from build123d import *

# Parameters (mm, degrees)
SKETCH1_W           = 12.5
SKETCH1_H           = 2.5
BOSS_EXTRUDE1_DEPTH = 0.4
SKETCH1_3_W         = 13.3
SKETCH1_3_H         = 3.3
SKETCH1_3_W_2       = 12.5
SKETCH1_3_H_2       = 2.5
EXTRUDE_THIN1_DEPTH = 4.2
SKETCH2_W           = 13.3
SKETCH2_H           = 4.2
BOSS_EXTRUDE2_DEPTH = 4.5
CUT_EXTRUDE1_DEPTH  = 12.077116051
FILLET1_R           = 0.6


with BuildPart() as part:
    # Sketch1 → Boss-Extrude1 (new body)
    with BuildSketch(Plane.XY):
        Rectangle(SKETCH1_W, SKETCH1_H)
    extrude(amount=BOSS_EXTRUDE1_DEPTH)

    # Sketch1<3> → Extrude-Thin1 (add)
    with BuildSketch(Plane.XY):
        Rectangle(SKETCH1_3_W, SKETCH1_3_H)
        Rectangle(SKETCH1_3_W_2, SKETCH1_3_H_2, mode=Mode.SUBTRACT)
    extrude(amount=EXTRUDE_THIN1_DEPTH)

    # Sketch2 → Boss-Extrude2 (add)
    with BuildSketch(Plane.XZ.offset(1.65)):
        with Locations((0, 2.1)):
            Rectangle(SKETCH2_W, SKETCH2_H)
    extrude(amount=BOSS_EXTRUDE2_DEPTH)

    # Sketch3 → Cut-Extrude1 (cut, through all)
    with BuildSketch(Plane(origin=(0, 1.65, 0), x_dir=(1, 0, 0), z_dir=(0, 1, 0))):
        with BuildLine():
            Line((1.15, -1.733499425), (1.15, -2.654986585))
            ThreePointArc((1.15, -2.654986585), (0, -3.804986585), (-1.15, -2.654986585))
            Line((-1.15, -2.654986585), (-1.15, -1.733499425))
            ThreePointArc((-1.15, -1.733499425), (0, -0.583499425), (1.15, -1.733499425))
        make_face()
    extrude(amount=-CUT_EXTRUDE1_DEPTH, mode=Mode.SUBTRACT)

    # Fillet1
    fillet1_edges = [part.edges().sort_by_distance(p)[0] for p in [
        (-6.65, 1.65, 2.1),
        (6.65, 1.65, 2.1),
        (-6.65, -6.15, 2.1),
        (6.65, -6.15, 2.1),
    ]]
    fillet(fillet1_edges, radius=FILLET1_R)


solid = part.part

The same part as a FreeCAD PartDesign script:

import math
import FreeCAD as App
import Part
import Sketcher

V = App.Vector


def edges_at(feature, points):
    """Names of the edges that pass closest to the given points."""
    edges = feature.Shape.Edges
    near = lambda p: min(range(len(edges)), key=lambda i: edges[i].distToShape(Part.Vertex(*p))[0])
    return sorted({f"Edge{near(p) + 1}" for p in points})


def add_polygon(sketch, points):
    """Adds a closed chain of lines whose ends are joined by coincident constraints."""
    first, n = sketch.GeometryCount, len(points)
    for a, b in zip(points, points[1:] + points[:1]):
        sketch.addGeometry(Part.LineSegment(App.Vector(*a, 0), App.Vector(*b, 0)), False)
    for i in range(n):
        sketch.addConstraint(Sketcher.Constraint("Coincident", first + i, 2, first + (i + 1) % n, 1))

doc = App.newDocument("Part")
params = doc.addObject("Spreadsheet::Sheet", "Params")
for row, (alias, value) in enumerate([
    ("sketch1_width", "12.5 mm"),
    ("sketch1_height", "2.5 mm"),
    ("pad1_length", "0.4 mm"),
    ("sketch2_width", "13.3 mm"),
    ("sketch2_width2", "12.5 mm"),
    ("sketch2_height", "3.3 mm"),
    ("sketch2_height2", "2.5 mm"),
    ("pad2_length", "4.2 mm"),
    ("sketch3_width", "13.3 mm"),
    ("sketch3_height", "4.2 mm"),
    ("pad3_length", "4.5 mm"),
    ("sketch4_radius", "1.15 mm"),
    ("fillet_radius", "0.6 mm"),
], start=1):
    params.set(f"A{row}", alias)
    params.set(f"B{row}", "=" + value)
    params.setAlias(f"B{row}", alias)

body = doc.addObject("PartDesign::Body", "Body")

# Sketch on XY plane
sketch1 = body.newObject("Sketcher::SketchObject", "Sketch")
sketch1.AttachmentSupport = (doc.getObject("XY_Plane"), [""])
sketch1.MapMode = "FlatFace"
add_polygon(sketch1, [(-6.2, 1.2), (-6.2, -1.2), (6.2, -1.2), (6.2, 1.2)])  # lines 0-3
sketch1.addConstraint(Sketcher.Constraint("Vertical", 0))
sketch1.addConstraint(Sketcher.Constraint("Horizontal", 1))
sketch1.addConstraint(Sketcher.Constraint("Vertical", 2))
sketch1.addConstraint(Sketcher.Constraint("Horizontal", 3))
sketch1.addConstraint(Sketcher.Constraint("Symmetric", 0, 2, 2, 2, -1, 1))
sketch1.addConstraint(Sketcher.Constraint("DistanceX", 1, 1, 1, 2, 12.5))
sketch1.addConstraint(Sketcher.Constraint("DistanceY", 0, 2, 0, 1, 2.5))
sketch1.setExpression("Constraints[9]", "Params.sketch1_width")
sketch1.setExpression("Constraints[10]", "Params.sketch1_height")
pad1 = body.newObject("PartDesign::Pad", "Pad")
pad1.Profile = sketch1
pad1.setExpression("Length", "Params.pad1_length")

# Sketch on XY plane
sketch2 = body.newObject("Sketcher::SketchObject", "Sketch001")
sketch2.AttachmentSupport = (doc.getObject("XY_Plane"), [""])
sketch2.MapMode = "FlatFace"
add_polygon(sketch2, [(-6.7, 1.6), (-6.7, -1.6), (6.7, -1.6), (6.7, 1.6)])  # lines 0-3
add_polygon(sketch2, [(6.2, -1.2), (-6.2, -1.2), (-6.2, 1.2), (6.2, 1.2)])  # lines 4-7
sketch2.addConstraint(Sketcher.Constraint("Vertical", 0))
sketch2.addConstraint(Sketcher.Constraint("Horizontal", 1))
sketch2.addConstraint(Sketcher.Constraint("Vertical", 2))
sketch2.addConstraint(Sketcher.Constraint("Horizontal", 3))
sketch2.addConstraint(Sketcher.Constraint("Horizontal", 4))
sketch2.addConstraint(Sketcher.Constraint("Vertical", 5))
sketch2.addConstraint(Sketcher.Constraint("Horizontal", 6))
sketch2.addConstraint(Sketcher.Constraint("Vertical", 7))
sketch2.addConstraint(Sketcher.Constraint("Symmetric", 0, 2, 2, 2, -1, 1))
sketch2.addConstraint(Sketcher.Constraint("Symmetric", 4, 2, 6, 2, -1, 1))
sketch2.addConstraint(Sketcher.Constraint("DistanceX", 1, 1, 1, 2, 13.3))
sketch2.addConstraint(Sketcher.Constraint("DistanceX", 4, 2, 4, 1, 12.5))
sketch2.addConstraint(Sketcher.Constraint("DistanceY", 0, 2, 0, 1, 3.3))
sketch2.addConstraint(Sketcher.Constraint("DistanceY", 5, 1, 5, 2, 2.5))
sketch2.setExpression("Constraints[18]", "Params.sketch2_width")
sketch2.setExpression("Constraints[19]", "Params.sketch2_width2")
sketch2.setExpression("Constraints[20]", "Params.sketch2_height")
sketch2.setExpression("Constraints[21]", "Params.sketch2_height2")
pad2 = body.newObject("PartDesign::Pad", "Pad001")
pad2.Profile = sketch2
pad2.setExpression("Length", "Params.pad2_length")

# Sketch on XZ plane
sketch3 = body.newObject("Sketcher::SketchObject", "Sketch002")
sketch3.AttachmentSupport = (doc.getObject("XZ_Plane"), [""])
sketch3.MapMode = "FlatFace"
sketch3.AttachmentOffset = App.Placement(V(0, 0, 1.65), App.Rotation())
add_polygon(sketch3, [(-6.7, 4.2), (-6.7, 0), (6.7, 0), (6.7, 4.2)])  # lines 0-3
sketch3.addConstraint(Sketcher.Constraint("Vertical", 0))
sketch3.addConstraint(Sketcher.Constraint("Horizontal", 1))
sketch3.addConstraint(Sketcher.Constraint("Vertical", 2))
sketch3.addConstraint(Sketcher.Constraint("Horizontal", 3))
sketch3.addConstraint(Sketcher.Constraint("Symmetric", 0, 2, 1, 2, -1, 1))
sketch3.addConstraint(Sketcher.Constraint("DistanceX", 1, 1, 1, 2, 13.3))
sketch3.addConstraint(Sketcher.Constraint("DistanceY", 0, 2, 0, 1, 4.2))
sketch3.setExpression("Constraints[9]", "Params.sketch3_width")
sketch3.setExpression("Constraints[10]", "Params.sketch3_height")
pad3 = body.newObject("PartDesign::Pad", "Pad002")
pad3.Profile = sketch3
pad3.setExpression("Length", "Params.pad3_length")

# Sketch on XZ plane
sketch4 = body.newObject("Sketcher::SketchObject", "Sketch003")
sketch4.AttachmentSupport = (doc.getObject("XZ_Plane"), [""])
sketch4.MapMode = "FlatFace"
sketch4.AttachmentOffset = App.Placement(V(0, 0, -1.65), App.Rotation())
sketch4.addGeometry(Part.LineSegment(V(1.1, 2.7, 0), V(1.1, 1.7, 0)), False)
sketch4.addGeometry(Part.ArcOfCircle(Part.Circle(V(0, 1.7, 0), V(0, 0, 1), 1.1), math.radians(180), math.radians(360)), False)
sketch4.addGeometry(Part.LineSegment(V(-1.1, 1.7, 0), V(-1.1, 2.7, 0)), False)
sketch4.addGeometry(Part.ArcOfCircle(Part.Circle(V(0, 2.7, 0), V(0, 0, 1), 1.1), math.radians(0), math.radians(180)), False)
sketch4.addConstraint(Sketcher.Constraint("Tangent", 0, 2, 1, 2))
sketch4.addConstraint(Sketcher.Constraint("Tangent", 1, 1, 2, 1))
sketch4.addConstraint(Sketcher.Constraint("Tangent", 2, 2, 3, 2))
sketch4.addConstraint(Sketcher.Constraint("Tangent", 3, 1, 0, 1))
sketch4.addConstraint(Sketcher.Constraint("Vertical", 0))
sketch4.addConstraint(Sketcher.Constraint("Vertical", 2))
sketch4.addConstraint(Sketcher.Constraint("PointOnObject", 1, 3, -2))
sketch4.addConstraint(Sketcher.Constraint("Radius", 1, 1.15))
sketch4.addConstraint(Sketcher.Constraint("DistanceY", -1, 1, 1, 3, 1.733499))
sketch4.addConstraint(Sketcher.Constraint("DistanceY", 0, 2, 0, 1, 0.921487))
sketch4.setExpression("Constraints[7]", "Params.sketch4_radius")
pocket1 = body.newObject("PartDesign::Pocket", "Pocket")
pocket1.Profile = sketch4
pocket1.Type = "ThroughAll"
pocket1.Reversed = True
doc.recompute()

fillet = body.newObject("PartDesign::Fillet", "Fillet")
fillet.Base = (pocket1, edges_at(pocket1, [
    (-6.65, 1.65, 2.1),
    (6.65, 1.65, 2.1),
    (-6.65, -6.15, 2.1),
    (6.65, -6.15, 2.1),
]))
fillet.setExpression("Radius", "Params.fillet_radius")

doc.recompute()
